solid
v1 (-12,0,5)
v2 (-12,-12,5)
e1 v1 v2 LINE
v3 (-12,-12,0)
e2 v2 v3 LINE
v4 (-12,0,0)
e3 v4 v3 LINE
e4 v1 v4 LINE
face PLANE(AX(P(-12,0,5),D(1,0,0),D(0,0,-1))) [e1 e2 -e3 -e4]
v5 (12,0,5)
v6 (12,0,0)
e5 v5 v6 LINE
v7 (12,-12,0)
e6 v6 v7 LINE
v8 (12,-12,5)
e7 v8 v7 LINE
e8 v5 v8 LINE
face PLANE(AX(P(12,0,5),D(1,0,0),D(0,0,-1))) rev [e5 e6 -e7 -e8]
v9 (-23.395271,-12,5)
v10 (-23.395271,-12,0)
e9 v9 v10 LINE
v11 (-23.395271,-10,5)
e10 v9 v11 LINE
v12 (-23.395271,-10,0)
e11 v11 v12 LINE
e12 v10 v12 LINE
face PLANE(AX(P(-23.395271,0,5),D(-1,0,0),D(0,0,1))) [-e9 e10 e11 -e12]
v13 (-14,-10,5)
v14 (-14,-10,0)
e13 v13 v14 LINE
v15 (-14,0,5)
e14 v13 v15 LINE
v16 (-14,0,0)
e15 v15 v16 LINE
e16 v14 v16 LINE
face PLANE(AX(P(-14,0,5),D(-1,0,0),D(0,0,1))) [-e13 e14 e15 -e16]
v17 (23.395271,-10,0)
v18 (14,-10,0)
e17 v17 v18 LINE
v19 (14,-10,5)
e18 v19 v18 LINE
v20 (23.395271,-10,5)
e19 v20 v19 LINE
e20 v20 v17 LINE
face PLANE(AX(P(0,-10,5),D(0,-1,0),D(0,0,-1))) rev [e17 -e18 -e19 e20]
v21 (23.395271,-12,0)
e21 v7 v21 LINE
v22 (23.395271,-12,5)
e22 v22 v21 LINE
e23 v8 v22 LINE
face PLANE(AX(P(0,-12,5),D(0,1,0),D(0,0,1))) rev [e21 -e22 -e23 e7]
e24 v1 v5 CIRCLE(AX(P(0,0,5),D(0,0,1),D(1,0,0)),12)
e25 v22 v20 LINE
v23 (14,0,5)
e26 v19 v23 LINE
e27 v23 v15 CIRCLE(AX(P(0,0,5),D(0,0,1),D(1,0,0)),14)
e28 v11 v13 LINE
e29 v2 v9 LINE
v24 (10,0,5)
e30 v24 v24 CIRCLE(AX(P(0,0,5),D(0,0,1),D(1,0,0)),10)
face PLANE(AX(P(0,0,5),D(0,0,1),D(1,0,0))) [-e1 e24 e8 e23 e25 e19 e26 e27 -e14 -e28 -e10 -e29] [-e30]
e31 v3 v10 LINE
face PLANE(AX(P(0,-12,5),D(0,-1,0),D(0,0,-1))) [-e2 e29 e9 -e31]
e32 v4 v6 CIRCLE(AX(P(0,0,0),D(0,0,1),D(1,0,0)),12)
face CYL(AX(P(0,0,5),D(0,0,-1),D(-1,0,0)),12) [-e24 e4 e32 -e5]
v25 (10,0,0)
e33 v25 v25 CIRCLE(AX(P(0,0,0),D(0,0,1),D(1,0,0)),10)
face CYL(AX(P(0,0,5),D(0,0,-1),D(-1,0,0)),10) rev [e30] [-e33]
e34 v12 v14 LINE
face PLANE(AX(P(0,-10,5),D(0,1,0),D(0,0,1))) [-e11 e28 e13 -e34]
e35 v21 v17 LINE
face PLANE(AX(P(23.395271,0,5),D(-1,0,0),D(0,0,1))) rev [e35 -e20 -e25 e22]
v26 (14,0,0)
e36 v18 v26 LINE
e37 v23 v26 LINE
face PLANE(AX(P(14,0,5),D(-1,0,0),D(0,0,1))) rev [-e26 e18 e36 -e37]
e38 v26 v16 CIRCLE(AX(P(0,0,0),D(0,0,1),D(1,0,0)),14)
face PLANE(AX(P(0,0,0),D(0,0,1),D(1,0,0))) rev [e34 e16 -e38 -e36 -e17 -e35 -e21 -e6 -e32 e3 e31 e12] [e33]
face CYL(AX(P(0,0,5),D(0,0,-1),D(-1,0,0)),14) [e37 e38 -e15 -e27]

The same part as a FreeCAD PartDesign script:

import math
import FreeCAD as App
import Part
import Sketcher
Q = App.Units.Quantity

doc = App.newDocument("Part")
body = doc.addObject("PartDesign::Body", "Body")

# Sketch on XY plane
sketch1 = body.newObject("Sketcher::SketchObject", "Sketch")
sketch1.AttachmentSupport = (doc.getObject("XY_Plane"), [""])
sketch1.MapMode = "FlatFace"
sketch1.addGeometry(Part.LineSegment(App.Vector(-12, -12, 0), App.Vector(-12, 0, 0)), False)
sketch1.addGeometry(Part.ArcOfCircle(Part.Circle(App.Vector(0, 0, 0), App.Vector(0, 0, 1), 12), math.radians(180), math.radians(360)), False)
sketch1.addGeometry(Part.LineSegment(App.Vector(12, 0, 0), App.Vector(12, -12, 0)), False)
sketch1.addGeometry(Part.LineSegment(App.Vector(12, -12, 0), App.Vector(23.395271, -12, 0)), False)
sketch1.addGeometry(Part.LineSegment(App.Vector(23.395271, -12, 0), App.Vector(23.395271, -10, 0)), False)
sketch1.addGeometry(Part.LineSegment(App.Vector(23.395271, -10, 0), App.Vector(14, -10, 0)), False)
sketch1.addGeometry(Part.LineSegment(App.Vector(14, -10, 0), App.Vector(14, 0, 0)), False)
sketch1.addGeometry(Part.ArcOfCircle(Part.Circle(App.Vector(0, 0, 0), App.Vector(0, 0, 1), 14), math.radians(0), math.radians(180)), False)
sketch1.addGeometry(Part.LineSegment(App.Vector(-14, 0, 0), App.Vector(-14, -10, 0)), False)
sketch1.addGeometry(Part.LineSegment(App.Vector(-14, -10, 0), App.Vector(-23.395271, -10, 0)), False)
sketch1.addGeometry(Part.LineSegment(App.Vector(-23.395271, -10, 0), App.Vector(-23.395271, -12, 0)), False)
sketch1.addGeometry(Part.LineSegment(App.Vector(-23.395271, -12, 0), App.Vector(-12, -12, 0)), False)
sketch1.addGeometry(Part.Circle(App.Vector(0, 0, 0), App.Vector(0, 0, 1), 10), False)
sketch1.addConstraint(Sketcher.Constraint("Tangent", 0, 2, 1, 1))
sketch1.addConstraint(Sketcher.Constraint("Tangent", 1, 2, 2, 1))
sketch1.addConstraint(Sketcher.Constraint("Coincident", 2, 2, 3, 1))
sketch1.addConstraint(Sketcher.Constraint("Coincident", 3, 2, 4, 1))
sketch1.addConstraint(Sketcher.Constraint("Coincident", 4, 2, 5, 1))
sketch1.addConstraint(Sketcher.Constraint("Coincident", 5, 2, 6, 1))
sketch1.addConstraint(Sketcher.Constraint("Tangent", 6, 2, 7, 1))
sketch1.addConstraint(Sketcher.Constraint("Tangent", 7, 2, 8, 1))
sketch1.addConstraint(Sketcher.Constraint("Coincident", 8, 2, 9, 1))
sketch1.addConstraint(Sketcher.Constraint("Coincident", 9, 2, 10, 1))
sketch1.addConstraint(Sketcher.Constraint("Coincident", 10, 2, 11, 1))
sketch1.addConstraint(Sketcher.Constraint("Coincident", 11, 2, 0, 1))
sketch1.addConstraint(Sketcher.Constraint("Vertical", 0))
sketch1.addConstraint(Sketcher.Constraint("Vertical", 2))
sketch1.addConstraint(Sketcher.Constraint("Horizontal", 3))
sketch1.addConstraint(Sketcher.Constraint("Vertical", 4))
sketch1.addConstraint(Sketcher.Constraint("Horizontal", 5))
sketch1.addConstraint(Sketcher.Constraint("Vertical", 6))
sketch1.addConstraint(Sketcher.Constraint("Vertical", 8))
sketch1.addConstraint(Sketcher.Constraint("Horizontal", 9))
sketch1.addConstraint(Sketcher.Constraint("Vertical", 10))
sketch1.addConstraint(Sketcher.Constraint("Horizontal", 11))
sketch1.addConstraint(Sketcher.Constraint("Coincident", 1, 3, -1, 1))
sketch1.addConstraint(Sketcher.Constraint("Coincident", 7, 3, -1, 1))
sketch1.addConstraint(Sketcher.Constraint("Coincident", 12, 3, -1, 1))
sketch1.addConstraint(Sketcher.Constraint("Symmetric", 4, 2, 9, 2, -2))
sketch1.addConstraint(Sketcher.Constraint("Horizontal", 3, 2, 10, 2))
sketch1.addConstraint(Sketcher.Constraint("Diameter", 12, Q("20 mm")))
sketch1.addConstraint(Sketcher.Constraint("Radius", 1, Q("12 mm")))
sketch1.addConstraint(Sketcher.Constraint("Radius", 7, Q("14 mm")))
sketch1.addConstraint(Sketcher.Constraint("DistanceY", 0, 1, 0, 2, Q("12 mm")))
sketch1.addConstraint(Sketcher.Constraint("DistanceY", 4, 1, 4, 2, Q("2 mm")))
sketch1.addConstraint(Sketcher.Constraint("DistanceX", 3, 1, 3, 2, Q("11.395271 mm")))
pad1 = body.newObject("PartDesign::Pad", "Pad")
pad1.Profile = sketch1
pad1.Length = 5

doc.recompute()
